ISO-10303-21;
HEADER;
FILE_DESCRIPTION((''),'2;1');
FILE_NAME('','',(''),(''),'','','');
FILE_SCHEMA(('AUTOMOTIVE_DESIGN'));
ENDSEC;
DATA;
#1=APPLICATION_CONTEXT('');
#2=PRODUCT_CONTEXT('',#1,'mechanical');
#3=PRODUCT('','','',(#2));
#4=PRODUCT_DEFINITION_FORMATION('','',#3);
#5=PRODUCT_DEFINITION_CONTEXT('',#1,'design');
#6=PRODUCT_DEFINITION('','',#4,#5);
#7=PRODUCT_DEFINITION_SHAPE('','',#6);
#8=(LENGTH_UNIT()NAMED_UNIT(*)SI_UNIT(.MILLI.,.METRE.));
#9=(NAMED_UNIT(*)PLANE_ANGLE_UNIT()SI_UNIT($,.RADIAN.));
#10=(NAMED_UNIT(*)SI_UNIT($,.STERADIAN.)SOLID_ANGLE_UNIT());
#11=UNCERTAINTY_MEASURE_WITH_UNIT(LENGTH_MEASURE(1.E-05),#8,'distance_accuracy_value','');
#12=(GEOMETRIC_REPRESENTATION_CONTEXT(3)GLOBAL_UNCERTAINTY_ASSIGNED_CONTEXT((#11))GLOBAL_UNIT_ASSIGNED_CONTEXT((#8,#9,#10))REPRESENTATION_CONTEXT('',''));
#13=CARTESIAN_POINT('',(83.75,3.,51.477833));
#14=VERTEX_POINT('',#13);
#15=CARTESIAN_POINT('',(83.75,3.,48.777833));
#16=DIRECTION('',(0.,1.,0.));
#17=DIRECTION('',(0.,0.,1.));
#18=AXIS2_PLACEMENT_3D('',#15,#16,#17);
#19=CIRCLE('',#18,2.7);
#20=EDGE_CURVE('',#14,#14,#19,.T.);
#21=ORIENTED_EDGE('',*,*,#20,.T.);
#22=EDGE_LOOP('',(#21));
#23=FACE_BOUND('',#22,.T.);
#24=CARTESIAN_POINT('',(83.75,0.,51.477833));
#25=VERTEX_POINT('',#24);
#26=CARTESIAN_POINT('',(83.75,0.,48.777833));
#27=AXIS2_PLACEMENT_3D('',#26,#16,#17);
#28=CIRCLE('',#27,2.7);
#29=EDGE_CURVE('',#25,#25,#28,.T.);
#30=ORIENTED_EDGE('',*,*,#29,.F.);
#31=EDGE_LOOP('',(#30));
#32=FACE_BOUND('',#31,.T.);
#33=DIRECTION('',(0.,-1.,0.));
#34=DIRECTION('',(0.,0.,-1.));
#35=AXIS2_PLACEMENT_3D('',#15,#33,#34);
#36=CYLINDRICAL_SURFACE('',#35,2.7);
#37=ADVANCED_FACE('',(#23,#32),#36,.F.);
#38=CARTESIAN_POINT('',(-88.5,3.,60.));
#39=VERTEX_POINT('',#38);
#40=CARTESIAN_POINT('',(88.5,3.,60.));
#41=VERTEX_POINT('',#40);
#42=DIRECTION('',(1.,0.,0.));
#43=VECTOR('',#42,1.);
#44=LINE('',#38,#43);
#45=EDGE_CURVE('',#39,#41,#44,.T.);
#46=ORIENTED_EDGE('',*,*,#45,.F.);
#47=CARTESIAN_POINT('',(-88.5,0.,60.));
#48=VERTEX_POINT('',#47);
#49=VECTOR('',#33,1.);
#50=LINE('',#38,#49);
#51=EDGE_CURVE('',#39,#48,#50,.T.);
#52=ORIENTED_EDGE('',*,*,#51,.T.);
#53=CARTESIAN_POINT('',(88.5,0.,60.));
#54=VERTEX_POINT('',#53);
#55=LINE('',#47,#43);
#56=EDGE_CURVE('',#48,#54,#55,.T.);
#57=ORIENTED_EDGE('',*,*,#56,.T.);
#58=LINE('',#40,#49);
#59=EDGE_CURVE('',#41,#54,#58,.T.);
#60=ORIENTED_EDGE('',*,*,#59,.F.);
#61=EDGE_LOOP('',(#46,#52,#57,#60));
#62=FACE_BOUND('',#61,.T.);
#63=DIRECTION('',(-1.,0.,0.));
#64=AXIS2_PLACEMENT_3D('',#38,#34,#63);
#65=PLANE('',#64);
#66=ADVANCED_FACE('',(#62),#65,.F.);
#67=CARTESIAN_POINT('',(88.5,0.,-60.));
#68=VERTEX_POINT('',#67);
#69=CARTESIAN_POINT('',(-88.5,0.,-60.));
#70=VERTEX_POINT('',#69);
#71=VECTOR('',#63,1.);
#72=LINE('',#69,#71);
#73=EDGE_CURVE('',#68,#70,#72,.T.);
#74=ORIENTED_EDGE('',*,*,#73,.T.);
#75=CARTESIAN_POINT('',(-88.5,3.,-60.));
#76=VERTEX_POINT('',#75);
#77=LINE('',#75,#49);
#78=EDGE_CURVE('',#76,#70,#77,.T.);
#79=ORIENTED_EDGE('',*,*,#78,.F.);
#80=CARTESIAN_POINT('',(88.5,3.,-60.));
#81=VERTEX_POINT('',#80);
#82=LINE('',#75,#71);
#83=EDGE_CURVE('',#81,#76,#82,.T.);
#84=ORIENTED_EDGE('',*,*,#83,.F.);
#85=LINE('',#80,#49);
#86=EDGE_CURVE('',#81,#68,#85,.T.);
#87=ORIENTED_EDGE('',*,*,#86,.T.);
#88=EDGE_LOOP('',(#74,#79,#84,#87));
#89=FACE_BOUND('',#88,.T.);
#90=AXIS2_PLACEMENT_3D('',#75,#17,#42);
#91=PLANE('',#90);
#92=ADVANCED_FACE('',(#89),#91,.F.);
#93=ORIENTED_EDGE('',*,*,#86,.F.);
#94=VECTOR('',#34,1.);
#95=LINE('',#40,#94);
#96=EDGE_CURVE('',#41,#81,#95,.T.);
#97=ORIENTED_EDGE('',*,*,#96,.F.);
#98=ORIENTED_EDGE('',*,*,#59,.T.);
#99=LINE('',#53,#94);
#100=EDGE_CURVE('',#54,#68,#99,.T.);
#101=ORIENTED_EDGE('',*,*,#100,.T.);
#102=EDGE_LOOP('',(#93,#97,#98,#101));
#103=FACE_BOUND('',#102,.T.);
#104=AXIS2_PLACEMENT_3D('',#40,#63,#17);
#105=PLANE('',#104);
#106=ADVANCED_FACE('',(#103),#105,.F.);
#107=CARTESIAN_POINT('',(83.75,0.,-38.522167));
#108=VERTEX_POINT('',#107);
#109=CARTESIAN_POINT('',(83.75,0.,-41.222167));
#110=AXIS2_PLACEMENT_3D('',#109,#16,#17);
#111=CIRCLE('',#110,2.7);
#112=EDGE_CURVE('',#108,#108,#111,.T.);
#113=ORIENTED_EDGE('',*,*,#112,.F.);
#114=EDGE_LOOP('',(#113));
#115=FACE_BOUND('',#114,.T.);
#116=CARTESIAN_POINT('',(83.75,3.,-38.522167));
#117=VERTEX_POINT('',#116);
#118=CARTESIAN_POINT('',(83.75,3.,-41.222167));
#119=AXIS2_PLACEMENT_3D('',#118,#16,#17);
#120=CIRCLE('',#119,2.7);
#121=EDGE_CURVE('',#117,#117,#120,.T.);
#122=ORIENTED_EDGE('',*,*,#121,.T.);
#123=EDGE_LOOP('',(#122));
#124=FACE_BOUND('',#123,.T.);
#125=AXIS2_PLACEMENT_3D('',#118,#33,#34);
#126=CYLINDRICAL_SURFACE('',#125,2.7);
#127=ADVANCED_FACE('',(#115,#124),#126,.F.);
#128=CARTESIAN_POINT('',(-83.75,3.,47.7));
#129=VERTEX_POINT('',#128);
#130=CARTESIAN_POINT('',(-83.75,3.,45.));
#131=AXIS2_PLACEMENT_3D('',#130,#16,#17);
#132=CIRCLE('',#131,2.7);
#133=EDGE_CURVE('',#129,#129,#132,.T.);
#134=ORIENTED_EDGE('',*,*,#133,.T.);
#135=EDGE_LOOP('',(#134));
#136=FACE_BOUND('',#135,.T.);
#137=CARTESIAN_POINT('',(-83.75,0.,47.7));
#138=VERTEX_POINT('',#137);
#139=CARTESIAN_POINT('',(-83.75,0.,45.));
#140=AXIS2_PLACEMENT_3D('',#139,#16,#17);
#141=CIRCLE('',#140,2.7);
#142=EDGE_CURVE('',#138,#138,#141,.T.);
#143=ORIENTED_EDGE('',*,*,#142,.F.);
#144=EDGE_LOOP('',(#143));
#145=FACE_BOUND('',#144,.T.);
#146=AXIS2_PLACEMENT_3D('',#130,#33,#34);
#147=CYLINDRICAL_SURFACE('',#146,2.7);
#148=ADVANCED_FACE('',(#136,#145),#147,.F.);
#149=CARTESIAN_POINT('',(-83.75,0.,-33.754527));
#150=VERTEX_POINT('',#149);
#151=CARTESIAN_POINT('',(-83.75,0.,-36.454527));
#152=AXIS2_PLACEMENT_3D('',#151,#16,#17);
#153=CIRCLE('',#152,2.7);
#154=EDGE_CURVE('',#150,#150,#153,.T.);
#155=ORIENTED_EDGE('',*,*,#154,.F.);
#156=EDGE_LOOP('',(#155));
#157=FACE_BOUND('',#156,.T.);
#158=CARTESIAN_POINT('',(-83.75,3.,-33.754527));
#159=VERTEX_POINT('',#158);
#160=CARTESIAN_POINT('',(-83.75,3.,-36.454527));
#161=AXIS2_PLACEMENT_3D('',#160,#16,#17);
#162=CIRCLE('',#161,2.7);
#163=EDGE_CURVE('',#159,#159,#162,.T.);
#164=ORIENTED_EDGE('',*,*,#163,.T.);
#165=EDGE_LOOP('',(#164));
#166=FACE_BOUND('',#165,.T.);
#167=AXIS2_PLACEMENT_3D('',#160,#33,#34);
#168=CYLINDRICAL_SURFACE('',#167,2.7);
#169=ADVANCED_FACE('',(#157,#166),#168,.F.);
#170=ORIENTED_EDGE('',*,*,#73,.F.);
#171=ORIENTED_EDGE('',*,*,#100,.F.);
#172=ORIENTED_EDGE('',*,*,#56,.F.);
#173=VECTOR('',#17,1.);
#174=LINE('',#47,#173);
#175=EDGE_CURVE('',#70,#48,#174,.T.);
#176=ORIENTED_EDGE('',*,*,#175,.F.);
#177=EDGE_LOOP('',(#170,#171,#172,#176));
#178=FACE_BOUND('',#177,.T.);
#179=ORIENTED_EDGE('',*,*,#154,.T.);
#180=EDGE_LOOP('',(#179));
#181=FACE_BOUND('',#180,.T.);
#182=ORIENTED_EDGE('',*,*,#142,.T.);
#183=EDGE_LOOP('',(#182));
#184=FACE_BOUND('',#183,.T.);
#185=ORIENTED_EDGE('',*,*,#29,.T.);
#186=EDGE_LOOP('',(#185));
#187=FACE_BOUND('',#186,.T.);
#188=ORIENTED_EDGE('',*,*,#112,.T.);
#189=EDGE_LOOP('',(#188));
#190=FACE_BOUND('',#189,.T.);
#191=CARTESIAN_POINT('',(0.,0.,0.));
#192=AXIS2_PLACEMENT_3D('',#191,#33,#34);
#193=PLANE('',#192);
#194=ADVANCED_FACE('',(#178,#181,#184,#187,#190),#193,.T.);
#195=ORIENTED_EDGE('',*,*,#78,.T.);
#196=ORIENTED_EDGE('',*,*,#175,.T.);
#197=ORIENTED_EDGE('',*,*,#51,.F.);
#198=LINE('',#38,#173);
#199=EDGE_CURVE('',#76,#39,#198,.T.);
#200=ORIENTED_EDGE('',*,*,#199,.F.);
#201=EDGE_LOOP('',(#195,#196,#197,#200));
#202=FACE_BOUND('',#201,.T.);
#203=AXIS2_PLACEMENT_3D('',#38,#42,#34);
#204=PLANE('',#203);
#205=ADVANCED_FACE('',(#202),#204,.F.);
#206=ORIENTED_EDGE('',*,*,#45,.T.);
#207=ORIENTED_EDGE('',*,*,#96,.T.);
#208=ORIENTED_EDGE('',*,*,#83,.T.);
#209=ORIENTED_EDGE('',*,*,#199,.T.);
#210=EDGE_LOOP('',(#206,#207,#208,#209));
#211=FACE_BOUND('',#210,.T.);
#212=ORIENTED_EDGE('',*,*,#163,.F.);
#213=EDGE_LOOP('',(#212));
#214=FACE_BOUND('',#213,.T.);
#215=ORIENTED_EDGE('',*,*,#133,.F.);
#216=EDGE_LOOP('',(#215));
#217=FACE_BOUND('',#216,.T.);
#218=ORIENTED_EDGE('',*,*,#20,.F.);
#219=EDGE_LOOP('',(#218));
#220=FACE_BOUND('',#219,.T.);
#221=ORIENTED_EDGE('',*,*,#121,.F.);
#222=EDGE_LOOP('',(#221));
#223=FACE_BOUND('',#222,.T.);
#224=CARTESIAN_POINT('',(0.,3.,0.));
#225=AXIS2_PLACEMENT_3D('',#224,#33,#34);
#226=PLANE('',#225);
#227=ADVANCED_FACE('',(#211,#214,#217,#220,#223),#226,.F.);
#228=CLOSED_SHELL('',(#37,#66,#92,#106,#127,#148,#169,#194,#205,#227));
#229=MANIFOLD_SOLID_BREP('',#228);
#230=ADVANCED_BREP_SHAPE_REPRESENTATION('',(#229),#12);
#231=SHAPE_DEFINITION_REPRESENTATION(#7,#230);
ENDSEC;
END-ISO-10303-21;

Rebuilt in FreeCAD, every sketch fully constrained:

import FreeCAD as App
import Part
import Sketcher
from FreeCAD import Vector


def add_polygon(sketch, points):
    """Adds a closed chain of lines whose ends are joined by coincident constraints."""
    first, n = sketch.GeometryCount, len(points)
    for a, b in zip(points, points[1:] + points[:1]):
        sketch.addGeometry(Part.LineSegment(App.Vector(*a, 0), App.Vector(*b, 0)), False)
    for i in range(n):
        sketch.addConstraint(Sketcher.Constraint("Coincident", first + i, 2, first + (i + 1) % n, 1))

doc = App.newDocument("Part")
body = doc.addObject("PartDesign::Body", "Body")

# Sketch on XZ plane
sketch1 = body.newObject("Sketcher::SketchObject", "Sketch")
sketch1.AttachmentSupport = (doc.getObject("XZ_Plane"), [""])
sketch1.MapMode = "FlatFace"
add_polygon(sketch1, [(-88.5, -60), (-88.5, 60), (88.5, 60), (88.5, -60)])  # lines 0-3
sketch1.addGeometry(Part.Circle(Vector(-83.8, 45, 0), Vector(0, 0, 1), 2.7), False)  # 4
sketch1.addGeometry(Part.Circle(Vector(83.8, 48.8, 0), Vector(0, 0, 1), 2.7), False)  # 5
sketch1.addGeometry(Part.Circle(Vector(-83.8, -36.5, 0), Vector(0, 0, 1), 2.7), False)  # 6
sketch1.addGeometry(Part.Circle(Vector(83.8, -41.2, 0), Vector(0, 0, 1), 2.7), False)  # 7
sketch1.addConstraint([
    Sketcher.Constraint("Vertical", 0),
    Sketcher.Constraint("Horizontal", 1),
    Sketcher.Constraint("Vertical", 2),
    Sketcher.Constraint("Horizontal", 3),
    Sketcher.Constraint("Equal", 4, 5),
    Sketcher.Constraint("Equal", 5, 6),
    Sketcher.Constraint("Equal", 6, 7),
    Sketcher.Constraint("Symmetric", 0, 2, 2, 2, -1, 1),
    Sketcher.Constraint("Vertical", 4, 3, 6, 3),
    Sketcher.Constraint("Vertical", 5, 3, 7, 3),
    Sketcher.Constraint("Diameter", 4, 5.4),
    Sketcher.Constraint("DistanceX", 1, 1, 1, 2, 177.0),
    Sketcher.Constraint("DistanceY", 0, 1, 0, 2, 120.0),
    Sketcher.Constraint("DistanceY", -1, 1, 4, 3, 45.0),
    Sketcher.Constraint("DistanceY", 7, 3, 5, 3, 90.0),
    Sketcher.Constraint("DistanceX", 4, 3, 5, 3, 167.5),
    Sketcher.Constraint("DistanceX", 4, 3, -1, 1, 83.75),
    Sketcher.Constraint("DistanceY", 6, 3, 5, 3, 85.23236),
    Sketcher.Constraint("DistanceY", -1, 1, 5, 3, 48.777833),
])
pad1 = body.newObject("PartDesign::Pad", "Pad")
pad1.Profile = sketch1
pad1.Length = 3
pad1.Reversed = True

doc.recompute()
